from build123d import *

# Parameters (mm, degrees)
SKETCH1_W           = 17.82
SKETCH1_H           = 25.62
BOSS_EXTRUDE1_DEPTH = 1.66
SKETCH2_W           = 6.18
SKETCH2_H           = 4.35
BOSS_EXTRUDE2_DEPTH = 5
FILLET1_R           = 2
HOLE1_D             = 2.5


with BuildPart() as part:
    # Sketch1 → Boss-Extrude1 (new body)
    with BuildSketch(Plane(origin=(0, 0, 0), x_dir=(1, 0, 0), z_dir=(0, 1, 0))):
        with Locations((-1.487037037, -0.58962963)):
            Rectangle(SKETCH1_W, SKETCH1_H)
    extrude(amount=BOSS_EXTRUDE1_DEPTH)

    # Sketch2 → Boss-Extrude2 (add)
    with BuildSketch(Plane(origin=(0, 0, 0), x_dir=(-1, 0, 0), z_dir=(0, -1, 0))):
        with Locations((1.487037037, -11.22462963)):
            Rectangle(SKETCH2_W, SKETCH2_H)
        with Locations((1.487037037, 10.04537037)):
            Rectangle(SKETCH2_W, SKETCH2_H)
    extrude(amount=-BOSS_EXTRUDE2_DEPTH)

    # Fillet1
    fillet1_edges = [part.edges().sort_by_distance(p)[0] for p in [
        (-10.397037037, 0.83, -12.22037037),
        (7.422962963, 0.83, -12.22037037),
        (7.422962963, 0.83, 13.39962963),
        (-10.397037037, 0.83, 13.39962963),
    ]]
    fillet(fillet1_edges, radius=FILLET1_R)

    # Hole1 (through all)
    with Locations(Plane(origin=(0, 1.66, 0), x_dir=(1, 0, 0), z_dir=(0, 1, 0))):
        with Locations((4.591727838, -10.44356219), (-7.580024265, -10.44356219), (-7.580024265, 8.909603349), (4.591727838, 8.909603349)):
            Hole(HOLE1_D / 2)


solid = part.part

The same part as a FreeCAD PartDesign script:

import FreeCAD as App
import Part
import Sketcher

V = App.Vector


def edges_at(feature, points):
    """Names of the edges that pass closest to the given points."""
    edges = feature.Shape.Edges
    near = lambda p: min(range(len(edges)), key=lambda i: edges[i].distToShape(Part.Vertex(*p))[0])
    return sorted({f"Edge{near(p) + 1}" for p in points})


def add_polygon(sketch, points):
    """Adds a closed chain of lines whose ends are joined by coincident constraints."""
    first, n = sketch.GeometryCount, len(points)
    for a, b in zip(points, points[1:] + points[:1]):
        sketch.addGeometry(Part.LineSegment(App.Vector(*a, 0), App.Vector(*b, 0)), False)
    for i in range(n):
        sketch.addConstraint(Sketcher.Constraint("Coincident", first + i, 2, first + (i + 1) % n, 1))

doc = App.newDocument("Part")
body = doc.addObject("PartDesign::Body", "Body")

# Sketch on XZ plane
sketch1 = doc.addObject("Sketcher::SketchObject", "Sketch")
body.addObject(sketch1)
sketch1.AttachmentSupport = (doc.XZ_Plane, [""])
sketch1.MapMode = "FlatFace"
add_polygon(sketch1, [(-10, -12), (-10, 13), (7, 13), (7, -12)])  # lines 0-3
sketch1.addConstraint(Sketcher.Constraint("Vertical", 0))
sketch1.addConstraint(Sketcher.Constraint("Horizontal", 1))
sketch1.addConstraint(Sketcher.Constraint("Vertical", 2))
sketch1.addConstraint(Sketcher.Constraint("Horizontal", 3))
sketch1.addConstraint(Sketcher.Constraint("DistanceX", 1, 1, 1, 2, 17.82))
sketch1.addConstraint(Sketcher.Constraint("DistanceY", 0, 1, 0, 2, 25.62))
sketch1.addConstraint(Sketcher.Constraint("DistanceY", -1, 1, 0, 2, 13.39963))
sketch1.addConstraint(Sketcher.Constraint("DistanceX", 0, 2, -1, 1, 10.397037))
pad1 = doc.addObject("PartDesign::Pad", "Pad")
body.addObject(pad1)
pad1.Profile = sketch1
pad1.Length = 1.66
pad1.Reversed = True

# Sketch on XZ plane
sketch2 = doc.addObject("Sketcher::SketchObject", "Sketch001")
body.addObject(sketch2)
sketch2.AttachmentSupport = (doc.XZ_Plane, [""])
sketch2.MapMode = "FlatFace"
add_polygon(sketch2, [(1.6, 9), (1.6, 13.4), (-4.6, 13.4), (-4.6, 9)])  # lines 0-3
add_polygon(sketch2, [(1.6, -12.2), (1.6, -7.9), (-4.6, -7.9), (-4.6, -12.2)])  # lines 4-7
sketch2.addConstraint(Sketcher.Constraint("Vertical", 0))
sketch2.addConstraint(Sketcher.Constraint("Horizontal", 1))
sketch2.addConstraint(Sketcher.Constraint("Vertical", 2))
sketch2.addConstraint(Sketcher.Constraint("Horizontal", 3))
sketch2.addConstraint(Sketcher.Constraint("Vertical", 4))
sketch2.addConstraint(Sketcher.Constraint("Horizontal", 5))
sketch2.addConstraint(Sketcher.Constraint("Vertical", 6))
sketch2.addConstraint(Sketcher.Constraint("Horizontal", 7))
sketch2.addConstraint(Sketcher.Constraint("Vertical", 3, 2, 4, 2))
sketch2.addConstraint(Sketcher.Constraint("Vertical", 2, 2, 5, 2))
sketch2.addConstraint(Sketcher.Constraint("Equal", 2, 4))
sketch2.addConstraint(Sketcher.Constraint("DistanceX", 1, 2, 1, 1, 6.18))
sketch2.addConstraint(Sketcher.Constraint("DistanceY", 0, 1, 0, 2, 4.35))
sketch2.addConstraint(Sketcher.Constraint("DistanceY", 4, 2, 3, 2, 16.92))
sketch2.addConstraint(Sketcher.Constraint("DistanceY", -1, 1, 0, 2, 13.39963))
sketch2.addConstraint(Sketcher.Constraint("DistanceX", -1, 1, 0, 2, 1.602963))
pad2 = doc.addObject("PartDesign::Pad", "Pad001")
body.addObject(pad2)
pad2.Profile = sketch2
pad2.Length = 5
pad2.Reversed = True
doc.recompute()

fillet = doc.addObject("PartDesign::Fillet", "Fillet")
body.addObject(fillet)
fillet.Base = (pad2, edges_at(pad2, [
    (-10.397, 0.83, -12.22),
    (7.423, 0.83, -12.22),
    (7.423, 0.83, 13.4),
    (-10.397, 0.83, 13.4),
]))
fillet.Radius = 2

# Sketch on XZ plane
sketch3 = doc.addObject("Sketcher::SketchObject", "Sketch002")
body.addObject(sketch3)
sketch3.AttachmentSupport = (doc.XZ_Plane, [""])
sketch3.MapMode = "FlatFace"
sketch3.AttachmentOffset = App.Placement(V(0, 0, -1.66), App.Rotation())
sketch3.addGeometry(Part.Circle(V(4.6, 10.4, 0), V(0, 0, 1), 1.2), False)
sketch3.addGeometry(Part.Circle(V(-7.6, 10.4, 0), V(0, 0, 1), 1.2), False)
sketch3.addGeometry(Part.Circle(V(-7.6, -8.9, 0), V(0, 0, 1), 1.2), False)
sketch3.addGeometry(Part.Circle(V(4.6, -8.9, 0), V(0, 0, 1), 1.2), False)
sketch3.addConstraint(Sketcher.Constraint("Equal", 0, 1))
sketch3.addConstraint(Sketcher.Constraint("Equal", 1, 2))
sketch3.addConstraint(Sketcher.Constraint("Equal", 2, 3))
sketch3.addConstraint(Sketcher.Constraint("Horizontal", 0, 3, 1, 3))
sketch3.addConstraint(Sketcher.Constraint("Horizontal", 2, 3, 3, 3))
sketch3.addConstraint(Sketcher.Constraint("Vertical", 1, 3, 2, 3))
sketch3.addConstraint(Sketcher.Constraint("Vertical", 0, 3, 3, 3))
sketch3.addConstraint(Sketcher.Constraint("Diameter", 0, 2.5))
sketch3.addConstraint(Sketcher.Constraint("DistanceX", -1, 1, 0, 3, 4.591728))
sketch3.addConstraint(Sketcher.Constraint("DistanceY", -1, 1, 0, 3, 10.443562))
sketch3.addConstraint(Sketcher.Constraint("DistanceX", 1, 3, -1, 1, 7.580024))
sketch3.addConstraint(Sketcher.Constraint("DistanceY", 2, 3, -1, 1, 8.909603))
doc.recompute()
hole = doc.addObject("PartDesign::Hole", "Hole")
body.addObject(hole)
hole.Profile = sketch3
hole.ThreadType = "None"
hole.Diameter = 2.5
hole.DepthType = "ThroughAll"
hole.Reversed = True

doc.recompute()
